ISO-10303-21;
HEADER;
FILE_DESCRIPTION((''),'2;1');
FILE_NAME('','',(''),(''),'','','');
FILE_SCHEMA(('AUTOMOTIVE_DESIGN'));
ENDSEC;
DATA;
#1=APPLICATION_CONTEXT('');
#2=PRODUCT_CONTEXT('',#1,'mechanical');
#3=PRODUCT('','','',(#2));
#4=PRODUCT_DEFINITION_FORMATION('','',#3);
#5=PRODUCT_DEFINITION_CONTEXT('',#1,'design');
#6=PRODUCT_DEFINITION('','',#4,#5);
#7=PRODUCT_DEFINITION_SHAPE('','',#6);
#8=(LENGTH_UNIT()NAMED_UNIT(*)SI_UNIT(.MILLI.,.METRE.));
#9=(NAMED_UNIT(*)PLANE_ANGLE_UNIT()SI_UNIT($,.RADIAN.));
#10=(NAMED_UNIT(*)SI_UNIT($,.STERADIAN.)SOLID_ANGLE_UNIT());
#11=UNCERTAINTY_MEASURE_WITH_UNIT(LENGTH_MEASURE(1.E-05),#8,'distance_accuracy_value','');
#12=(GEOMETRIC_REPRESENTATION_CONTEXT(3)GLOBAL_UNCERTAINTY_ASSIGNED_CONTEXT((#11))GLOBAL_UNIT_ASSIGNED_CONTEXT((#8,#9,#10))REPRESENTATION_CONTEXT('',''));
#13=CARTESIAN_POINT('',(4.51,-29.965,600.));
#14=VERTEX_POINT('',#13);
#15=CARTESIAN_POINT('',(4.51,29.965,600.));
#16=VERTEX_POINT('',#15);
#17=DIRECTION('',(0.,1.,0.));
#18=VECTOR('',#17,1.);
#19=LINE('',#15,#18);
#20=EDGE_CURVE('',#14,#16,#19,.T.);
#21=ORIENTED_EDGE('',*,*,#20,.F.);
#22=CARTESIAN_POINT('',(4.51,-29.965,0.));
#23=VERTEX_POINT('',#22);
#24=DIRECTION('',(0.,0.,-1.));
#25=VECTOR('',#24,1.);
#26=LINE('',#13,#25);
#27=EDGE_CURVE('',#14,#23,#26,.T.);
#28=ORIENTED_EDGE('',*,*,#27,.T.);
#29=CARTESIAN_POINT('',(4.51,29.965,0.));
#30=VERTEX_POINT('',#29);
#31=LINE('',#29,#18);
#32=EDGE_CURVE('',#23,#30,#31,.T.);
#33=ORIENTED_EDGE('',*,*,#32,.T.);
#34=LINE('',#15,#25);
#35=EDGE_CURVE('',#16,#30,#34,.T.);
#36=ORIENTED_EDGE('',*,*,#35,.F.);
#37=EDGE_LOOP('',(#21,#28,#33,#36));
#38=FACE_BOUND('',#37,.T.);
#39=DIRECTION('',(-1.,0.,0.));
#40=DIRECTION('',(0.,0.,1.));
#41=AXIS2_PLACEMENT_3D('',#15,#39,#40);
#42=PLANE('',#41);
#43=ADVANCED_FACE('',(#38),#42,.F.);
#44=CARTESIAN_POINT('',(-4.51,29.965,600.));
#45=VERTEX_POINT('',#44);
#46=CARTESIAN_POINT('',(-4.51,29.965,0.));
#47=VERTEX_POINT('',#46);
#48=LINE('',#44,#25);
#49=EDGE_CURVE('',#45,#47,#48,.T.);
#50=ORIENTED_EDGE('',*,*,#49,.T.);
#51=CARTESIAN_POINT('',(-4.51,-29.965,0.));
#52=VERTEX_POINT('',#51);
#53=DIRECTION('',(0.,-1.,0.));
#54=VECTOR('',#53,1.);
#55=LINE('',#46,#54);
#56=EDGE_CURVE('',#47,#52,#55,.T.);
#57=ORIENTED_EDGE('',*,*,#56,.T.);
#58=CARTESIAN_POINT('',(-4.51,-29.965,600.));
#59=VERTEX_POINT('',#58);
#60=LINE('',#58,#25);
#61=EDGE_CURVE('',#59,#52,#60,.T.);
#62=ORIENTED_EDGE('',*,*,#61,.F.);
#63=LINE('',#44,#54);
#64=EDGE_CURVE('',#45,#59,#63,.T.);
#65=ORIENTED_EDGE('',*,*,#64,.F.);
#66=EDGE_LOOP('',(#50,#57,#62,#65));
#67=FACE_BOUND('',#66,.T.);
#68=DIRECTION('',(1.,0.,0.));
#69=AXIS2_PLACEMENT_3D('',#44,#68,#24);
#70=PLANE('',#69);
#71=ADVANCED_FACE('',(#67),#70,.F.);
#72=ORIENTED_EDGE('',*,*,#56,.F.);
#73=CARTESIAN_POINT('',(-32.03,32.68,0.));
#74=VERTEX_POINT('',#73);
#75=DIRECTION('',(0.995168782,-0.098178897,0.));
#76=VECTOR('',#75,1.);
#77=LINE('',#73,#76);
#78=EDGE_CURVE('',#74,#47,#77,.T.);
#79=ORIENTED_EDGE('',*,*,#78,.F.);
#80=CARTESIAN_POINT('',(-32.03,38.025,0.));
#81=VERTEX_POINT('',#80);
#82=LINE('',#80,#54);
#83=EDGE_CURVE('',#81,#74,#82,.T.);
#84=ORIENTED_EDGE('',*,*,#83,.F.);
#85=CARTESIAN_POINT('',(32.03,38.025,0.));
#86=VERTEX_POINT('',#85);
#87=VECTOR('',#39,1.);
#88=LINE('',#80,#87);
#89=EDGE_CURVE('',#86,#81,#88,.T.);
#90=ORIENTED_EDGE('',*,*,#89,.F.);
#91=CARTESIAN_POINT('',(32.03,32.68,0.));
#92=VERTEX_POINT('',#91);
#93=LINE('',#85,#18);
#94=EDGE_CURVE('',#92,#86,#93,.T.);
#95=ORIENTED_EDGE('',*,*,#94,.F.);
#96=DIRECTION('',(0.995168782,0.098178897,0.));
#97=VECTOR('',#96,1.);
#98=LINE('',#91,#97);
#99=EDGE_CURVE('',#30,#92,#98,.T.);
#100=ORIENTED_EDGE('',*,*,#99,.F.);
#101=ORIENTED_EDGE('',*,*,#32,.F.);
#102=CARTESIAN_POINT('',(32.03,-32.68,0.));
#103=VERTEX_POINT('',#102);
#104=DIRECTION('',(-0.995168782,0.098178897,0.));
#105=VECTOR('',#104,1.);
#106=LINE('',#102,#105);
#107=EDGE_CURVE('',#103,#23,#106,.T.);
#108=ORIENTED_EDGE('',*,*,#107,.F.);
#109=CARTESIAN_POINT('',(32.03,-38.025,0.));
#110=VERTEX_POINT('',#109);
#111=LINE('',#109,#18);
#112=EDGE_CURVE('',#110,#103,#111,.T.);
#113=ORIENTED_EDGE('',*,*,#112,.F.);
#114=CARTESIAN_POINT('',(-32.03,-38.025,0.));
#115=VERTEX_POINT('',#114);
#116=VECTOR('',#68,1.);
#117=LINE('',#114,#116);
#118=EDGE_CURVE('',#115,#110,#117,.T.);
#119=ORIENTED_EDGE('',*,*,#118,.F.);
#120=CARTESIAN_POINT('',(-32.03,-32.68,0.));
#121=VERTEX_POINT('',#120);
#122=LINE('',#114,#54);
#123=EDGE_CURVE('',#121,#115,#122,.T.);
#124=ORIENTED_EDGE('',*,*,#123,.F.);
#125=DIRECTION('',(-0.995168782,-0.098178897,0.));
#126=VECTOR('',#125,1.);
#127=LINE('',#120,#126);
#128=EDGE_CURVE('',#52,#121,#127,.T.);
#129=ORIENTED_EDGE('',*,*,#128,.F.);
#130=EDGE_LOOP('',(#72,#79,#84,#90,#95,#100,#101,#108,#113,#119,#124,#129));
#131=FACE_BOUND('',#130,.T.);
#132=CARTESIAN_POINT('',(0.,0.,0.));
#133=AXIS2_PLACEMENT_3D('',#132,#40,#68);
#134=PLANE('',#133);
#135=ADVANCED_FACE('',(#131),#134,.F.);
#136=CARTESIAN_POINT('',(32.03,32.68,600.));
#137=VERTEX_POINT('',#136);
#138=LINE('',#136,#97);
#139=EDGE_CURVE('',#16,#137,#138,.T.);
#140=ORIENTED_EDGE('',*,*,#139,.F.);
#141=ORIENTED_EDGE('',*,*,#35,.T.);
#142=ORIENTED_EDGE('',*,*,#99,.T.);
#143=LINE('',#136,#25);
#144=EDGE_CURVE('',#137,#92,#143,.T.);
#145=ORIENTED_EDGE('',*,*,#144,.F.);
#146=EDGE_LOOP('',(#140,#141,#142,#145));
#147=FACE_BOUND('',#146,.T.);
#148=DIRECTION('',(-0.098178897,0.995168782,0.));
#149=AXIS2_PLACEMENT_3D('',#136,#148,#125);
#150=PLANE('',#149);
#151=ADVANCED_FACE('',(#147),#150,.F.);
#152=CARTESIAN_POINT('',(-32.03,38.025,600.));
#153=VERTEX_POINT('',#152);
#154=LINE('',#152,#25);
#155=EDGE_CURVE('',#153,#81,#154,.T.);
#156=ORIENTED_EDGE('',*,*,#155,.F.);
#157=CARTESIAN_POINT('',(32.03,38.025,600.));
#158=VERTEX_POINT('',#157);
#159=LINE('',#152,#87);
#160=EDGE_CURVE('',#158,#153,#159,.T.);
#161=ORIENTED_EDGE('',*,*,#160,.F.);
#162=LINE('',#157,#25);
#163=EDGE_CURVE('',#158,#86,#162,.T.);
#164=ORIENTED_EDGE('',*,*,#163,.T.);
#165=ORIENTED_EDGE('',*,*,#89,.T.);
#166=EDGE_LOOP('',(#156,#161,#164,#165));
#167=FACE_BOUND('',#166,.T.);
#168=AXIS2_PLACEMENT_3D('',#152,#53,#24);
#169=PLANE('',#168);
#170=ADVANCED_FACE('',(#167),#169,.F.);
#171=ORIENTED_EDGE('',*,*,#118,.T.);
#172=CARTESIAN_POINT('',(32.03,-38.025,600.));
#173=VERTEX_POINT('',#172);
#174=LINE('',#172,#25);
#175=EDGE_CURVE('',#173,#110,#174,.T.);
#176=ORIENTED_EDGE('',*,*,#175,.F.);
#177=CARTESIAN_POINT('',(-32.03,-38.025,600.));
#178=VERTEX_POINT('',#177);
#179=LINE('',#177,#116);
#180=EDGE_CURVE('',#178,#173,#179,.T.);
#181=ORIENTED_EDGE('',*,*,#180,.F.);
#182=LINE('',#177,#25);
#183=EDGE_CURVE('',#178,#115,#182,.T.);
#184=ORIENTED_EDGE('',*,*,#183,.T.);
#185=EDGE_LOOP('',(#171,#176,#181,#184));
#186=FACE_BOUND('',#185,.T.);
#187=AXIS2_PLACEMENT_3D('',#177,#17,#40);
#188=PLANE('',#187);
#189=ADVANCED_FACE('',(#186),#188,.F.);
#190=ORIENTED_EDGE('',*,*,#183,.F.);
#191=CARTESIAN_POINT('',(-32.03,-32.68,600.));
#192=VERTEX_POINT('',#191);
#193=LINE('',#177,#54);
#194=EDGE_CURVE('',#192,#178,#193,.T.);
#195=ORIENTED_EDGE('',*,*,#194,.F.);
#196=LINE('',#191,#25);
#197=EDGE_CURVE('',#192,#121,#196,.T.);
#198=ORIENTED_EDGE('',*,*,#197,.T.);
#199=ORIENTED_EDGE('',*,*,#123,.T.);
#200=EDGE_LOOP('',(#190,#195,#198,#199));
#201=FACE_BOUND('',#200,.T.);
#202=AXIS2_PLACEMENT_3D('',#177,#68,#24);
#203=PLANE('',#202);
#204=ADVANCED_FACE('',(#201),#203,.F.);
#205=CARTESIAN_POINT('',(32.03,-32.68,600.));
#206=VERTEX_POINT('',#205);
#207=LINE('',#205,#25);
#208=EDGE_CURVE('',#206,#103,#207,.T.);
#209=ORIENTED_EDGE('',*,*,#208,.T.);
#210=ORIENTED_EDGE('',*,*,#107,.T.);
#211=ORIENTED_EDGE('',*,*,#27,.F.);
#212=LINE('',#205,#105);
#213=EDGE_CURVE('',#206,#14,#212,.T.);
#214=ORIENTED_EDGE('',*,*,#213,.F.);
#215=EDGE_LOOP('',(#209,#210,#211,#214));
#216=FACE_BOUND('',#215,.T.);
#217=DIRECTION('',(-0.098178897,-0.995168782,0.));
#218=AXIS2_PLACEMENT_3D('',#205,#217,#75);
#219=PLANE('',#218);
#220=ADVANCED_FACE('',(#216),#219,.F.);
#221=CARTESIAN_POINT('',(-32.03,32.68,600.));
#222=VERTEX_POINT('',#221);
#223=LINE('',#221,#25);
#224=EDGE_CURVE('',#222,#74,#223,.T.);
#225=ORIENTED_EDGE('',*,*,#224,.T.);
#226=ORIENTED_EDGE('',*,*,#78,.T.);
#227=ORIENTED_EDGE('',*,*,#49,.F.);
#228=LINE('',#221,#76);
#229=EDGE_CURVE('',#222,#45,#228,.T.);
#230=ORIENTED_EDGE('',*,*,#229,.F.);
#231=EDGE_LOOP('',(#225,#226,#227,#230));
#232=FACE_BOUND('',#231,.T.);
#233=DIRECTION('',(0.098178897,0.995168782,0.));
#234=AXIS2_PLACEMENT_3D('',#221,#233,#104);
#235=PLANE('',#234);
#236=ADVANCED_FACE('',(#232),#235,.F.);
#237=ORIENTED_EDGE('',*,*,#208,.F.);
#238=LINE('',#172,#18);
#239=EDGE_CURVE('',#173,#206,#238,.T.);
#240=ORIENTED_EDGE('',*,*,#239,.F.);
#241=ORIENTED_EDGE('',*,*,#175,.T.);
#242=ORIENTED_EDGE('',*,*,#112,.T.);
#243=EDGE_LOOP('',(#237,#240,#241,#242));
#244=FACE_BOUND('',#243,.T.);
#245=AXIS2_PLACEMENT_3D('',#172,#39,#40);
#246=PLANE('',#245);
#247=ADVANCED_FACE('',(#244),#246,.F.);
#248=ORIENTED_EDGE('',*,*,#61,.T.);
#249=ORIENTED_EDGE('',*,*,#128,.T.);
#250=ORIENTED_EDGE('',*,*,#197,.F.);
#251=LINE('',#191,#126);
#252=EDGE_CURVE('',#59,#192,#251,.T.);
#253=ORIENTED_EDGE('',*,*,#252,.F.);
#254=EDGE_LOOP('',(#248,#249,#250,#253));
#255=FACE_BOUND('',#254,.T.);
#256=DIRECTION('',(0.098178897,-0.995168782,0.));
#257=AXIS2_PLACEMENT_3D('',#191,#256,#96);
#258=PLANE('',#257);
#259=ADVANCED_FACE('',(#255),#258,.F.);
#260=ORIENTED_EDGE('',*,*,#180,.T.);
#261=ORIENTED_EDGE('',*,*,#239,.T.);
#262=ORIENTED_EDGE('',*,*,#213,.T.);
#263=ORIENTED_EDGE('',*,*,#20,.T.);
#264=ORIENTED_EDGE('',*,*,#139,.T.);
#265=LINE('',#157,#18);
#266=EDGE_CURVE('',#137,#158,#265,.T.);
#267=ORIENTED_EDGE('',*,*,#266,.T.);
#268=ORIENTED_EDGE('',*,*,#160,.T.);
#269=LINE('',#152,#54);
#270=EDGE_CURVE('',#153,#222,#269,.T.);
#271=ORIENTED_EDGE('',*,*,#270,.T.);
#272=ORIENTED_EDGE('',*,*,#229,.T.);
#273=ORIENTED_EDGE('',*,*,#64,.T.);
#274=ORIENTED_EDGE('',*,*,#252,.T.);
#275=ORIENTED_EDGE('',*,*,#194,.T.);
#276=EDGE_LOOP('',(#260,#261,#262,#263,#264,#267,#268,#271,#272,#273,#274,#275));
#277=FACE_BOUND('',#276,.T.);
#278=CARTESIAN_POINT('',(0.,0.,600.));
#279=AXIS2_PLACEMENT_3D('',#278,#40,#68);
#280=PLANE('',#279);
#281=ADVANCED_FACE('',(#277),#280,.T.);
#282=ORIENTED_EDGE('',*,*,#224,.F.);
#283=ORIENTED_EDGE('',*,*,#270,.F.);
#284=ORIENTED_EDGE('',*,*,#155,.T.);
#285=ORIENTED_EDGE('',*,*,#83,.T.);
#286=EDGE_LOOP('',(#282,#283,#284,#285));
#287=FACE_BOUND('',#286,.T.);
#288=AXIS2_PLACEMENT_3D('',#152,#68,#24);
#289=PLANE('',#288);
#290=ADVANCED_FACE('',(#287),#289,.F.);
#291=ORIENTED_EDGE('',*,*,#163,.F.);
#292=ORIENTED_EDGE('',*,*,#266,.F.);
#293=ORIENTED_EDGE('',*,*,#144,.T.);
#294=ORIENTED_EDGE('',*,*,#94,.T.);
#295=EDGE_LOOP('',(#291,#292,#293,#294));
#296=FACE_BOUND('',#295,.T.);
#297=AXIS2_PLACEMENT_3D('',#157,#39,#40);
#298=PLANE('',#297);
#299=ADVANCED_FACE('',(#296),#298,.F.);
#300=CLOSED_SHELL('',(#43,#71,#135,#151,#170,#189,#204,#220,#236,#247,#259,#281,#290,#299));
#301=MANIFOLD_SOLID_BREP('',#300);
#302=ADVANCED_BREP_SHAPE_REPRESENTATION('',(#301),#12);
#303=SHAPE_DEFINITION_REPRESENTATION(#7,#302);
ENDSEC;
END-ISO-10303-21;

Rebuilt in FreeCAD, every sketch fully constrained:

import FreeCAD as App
import Part
import Sketcher
from FreeCAD import Vector
Q = App.Units.Quantity

doc = App.newDocument("Part")
body = doc.addObject("PartDesign::Body", "Body")

# Sketch on XY plane
sketch1 = body.newObject("Sketcher::SketchObject", "Sketch")
sketch1.AttachmentSupport = (doc.getObject("XY_Plane"), [""])
sketch1.MapMode = "FlatFace"
sketch1.addGeometry([
    Part.LineSegment(Vector(32.03, 38.025, 0), Vector(-32.03, 38.025, 0)),  # 0
    Part.LineSegment(Vector(-32.03, 38.025, 0), Vector(-32.03, 32.68, 0)),  # 1
    Part.LineSegment(Vector(-32.03, 32.68, 0), Vector(-4.51, 29.965, 0)),  # 2
    Part.LineSegment(Vector(-4.51, 29.965, 0), Vector(-4.51, -29.965, 0)),  # 3
    Part.LineSegment(Vector(-4.51, -29.965, 0), Vector(-32.03, -32.68, 0)),  # 4
    Part.LineSegment(Vector(-32.03, -32.68, 0), Vector(-32.03, -38.025, 0)),  # 5
    Part.LineSegment(Vector(-32.03, -38.025, 0), Vector(32.03, -38.025, 0)),  # 6
    Part.LineSegment(Vector(32.03, -38.025, 0), Vector(32.03, -32.68, 0)),  # 7
    Part.LineSegment(Vector(32.03, -32.68, 0), Vector(4.51, -29.965, 0)),  # 8
    Part.LineSegment(Vector(4.51, -29.965, 0), Vector(4.51, 29.965, 0)),  # 9
    Part.LineSegment(Vector(4.51, 29.965, 0), Vector(32.03, 32.68, 0)),  # 10
    Part.LineSegment(Vector(32.03, 32.68, 0), Vector(32.03, 38.025, 0)),  # 11
], False)
sketch1.addConstraint([
    Sketcher.Constraint("Coincident", 0, 2, 1, 1),
    Sketcher.Constraint("Coincident", 1, 2, 2, 1),
    Sketcher.Constraint("Coincident", 2, 2, 3, 1),
    Sketcher.Constraint("Coincident", 3, 2, 4, 1),
    Sketcher.Constraint("Coincident", 4, 2, 5, 1),
    Sketcher.Constraint("Coincident", 5, 2, 6, 1),
    Sketcher.Constraint("Coincident", 6, 2, 7, 1),
    Sketcher.Constraint("Coincident", 7, 2, 8, 1),
    Sketcher.Constraint("Coincident", 8, 2, 9, 1),
    Sketcher.Constraint("Coincident", 9, 2, 10, 1),
    Sketcher.Constraint("Coincident", 10, 2, 11, 1),
    Sketcher.Constraint("Coincident", 11, 2, 0, 1),
    Sketcher.Constraint("Horizontal", 0),
    Sketcher.Constraint("Vertical", 1),
    Sketcher.Constraint("Vertical", 3),
    Sketcher.Constraint("Vertical", 5),
    Sketcher.Constraint("Horizontal", 6),
    Sketcher.Constraint("Vertical", 7),
    Sketcher.Constraint("Vertical", 9),
    Sketcher.Constraint("Vertical", 11),
    Sketcher.Constraint("Symmetric", 0, 2, 6, 2, -1, 1),
    Sketcher.Constraint("Symmetric", 2, 2, 8, 2, -1, 1),
    Sketcher.Constraint("Symmetric", 4, 2, 10, 2, -1, 1),
    Sketcher.Constraint("Symmetric", 4, 2, 7, 2, -2),
    Sketcher.Constraint("Parallel", 2, 8),
    Sketcher.Constraint("Parallel", 4, 10),
    Sketcher.Constraint("Horizontal", 3, 2, 8, 2),
    Sketcher.Constraint("DistanceX", 0, 2, 0, 1, Q("64.06 mm")),
    Sketcher.Constraint("DistanceY", 3, 2, 3, 1, Q("59.93 mm")),
    Sketcher.Constraint("DistanceY", 1, 2, 1, 1, Q("5.345 mm")),
    Sketcher.Constraint("DistanceY", -1, 1, 1, 2, Q("32.68 mm")),
    Sketcher.Constraint("DistanceX", 2, 2, -1, 1, Q("4.51 mm")),
])
pad1 = body.newObject("PartDesign::Pad", "Pad")
pad1.Profile = sketch1
pad1.Length = 600

doc.recompute()
